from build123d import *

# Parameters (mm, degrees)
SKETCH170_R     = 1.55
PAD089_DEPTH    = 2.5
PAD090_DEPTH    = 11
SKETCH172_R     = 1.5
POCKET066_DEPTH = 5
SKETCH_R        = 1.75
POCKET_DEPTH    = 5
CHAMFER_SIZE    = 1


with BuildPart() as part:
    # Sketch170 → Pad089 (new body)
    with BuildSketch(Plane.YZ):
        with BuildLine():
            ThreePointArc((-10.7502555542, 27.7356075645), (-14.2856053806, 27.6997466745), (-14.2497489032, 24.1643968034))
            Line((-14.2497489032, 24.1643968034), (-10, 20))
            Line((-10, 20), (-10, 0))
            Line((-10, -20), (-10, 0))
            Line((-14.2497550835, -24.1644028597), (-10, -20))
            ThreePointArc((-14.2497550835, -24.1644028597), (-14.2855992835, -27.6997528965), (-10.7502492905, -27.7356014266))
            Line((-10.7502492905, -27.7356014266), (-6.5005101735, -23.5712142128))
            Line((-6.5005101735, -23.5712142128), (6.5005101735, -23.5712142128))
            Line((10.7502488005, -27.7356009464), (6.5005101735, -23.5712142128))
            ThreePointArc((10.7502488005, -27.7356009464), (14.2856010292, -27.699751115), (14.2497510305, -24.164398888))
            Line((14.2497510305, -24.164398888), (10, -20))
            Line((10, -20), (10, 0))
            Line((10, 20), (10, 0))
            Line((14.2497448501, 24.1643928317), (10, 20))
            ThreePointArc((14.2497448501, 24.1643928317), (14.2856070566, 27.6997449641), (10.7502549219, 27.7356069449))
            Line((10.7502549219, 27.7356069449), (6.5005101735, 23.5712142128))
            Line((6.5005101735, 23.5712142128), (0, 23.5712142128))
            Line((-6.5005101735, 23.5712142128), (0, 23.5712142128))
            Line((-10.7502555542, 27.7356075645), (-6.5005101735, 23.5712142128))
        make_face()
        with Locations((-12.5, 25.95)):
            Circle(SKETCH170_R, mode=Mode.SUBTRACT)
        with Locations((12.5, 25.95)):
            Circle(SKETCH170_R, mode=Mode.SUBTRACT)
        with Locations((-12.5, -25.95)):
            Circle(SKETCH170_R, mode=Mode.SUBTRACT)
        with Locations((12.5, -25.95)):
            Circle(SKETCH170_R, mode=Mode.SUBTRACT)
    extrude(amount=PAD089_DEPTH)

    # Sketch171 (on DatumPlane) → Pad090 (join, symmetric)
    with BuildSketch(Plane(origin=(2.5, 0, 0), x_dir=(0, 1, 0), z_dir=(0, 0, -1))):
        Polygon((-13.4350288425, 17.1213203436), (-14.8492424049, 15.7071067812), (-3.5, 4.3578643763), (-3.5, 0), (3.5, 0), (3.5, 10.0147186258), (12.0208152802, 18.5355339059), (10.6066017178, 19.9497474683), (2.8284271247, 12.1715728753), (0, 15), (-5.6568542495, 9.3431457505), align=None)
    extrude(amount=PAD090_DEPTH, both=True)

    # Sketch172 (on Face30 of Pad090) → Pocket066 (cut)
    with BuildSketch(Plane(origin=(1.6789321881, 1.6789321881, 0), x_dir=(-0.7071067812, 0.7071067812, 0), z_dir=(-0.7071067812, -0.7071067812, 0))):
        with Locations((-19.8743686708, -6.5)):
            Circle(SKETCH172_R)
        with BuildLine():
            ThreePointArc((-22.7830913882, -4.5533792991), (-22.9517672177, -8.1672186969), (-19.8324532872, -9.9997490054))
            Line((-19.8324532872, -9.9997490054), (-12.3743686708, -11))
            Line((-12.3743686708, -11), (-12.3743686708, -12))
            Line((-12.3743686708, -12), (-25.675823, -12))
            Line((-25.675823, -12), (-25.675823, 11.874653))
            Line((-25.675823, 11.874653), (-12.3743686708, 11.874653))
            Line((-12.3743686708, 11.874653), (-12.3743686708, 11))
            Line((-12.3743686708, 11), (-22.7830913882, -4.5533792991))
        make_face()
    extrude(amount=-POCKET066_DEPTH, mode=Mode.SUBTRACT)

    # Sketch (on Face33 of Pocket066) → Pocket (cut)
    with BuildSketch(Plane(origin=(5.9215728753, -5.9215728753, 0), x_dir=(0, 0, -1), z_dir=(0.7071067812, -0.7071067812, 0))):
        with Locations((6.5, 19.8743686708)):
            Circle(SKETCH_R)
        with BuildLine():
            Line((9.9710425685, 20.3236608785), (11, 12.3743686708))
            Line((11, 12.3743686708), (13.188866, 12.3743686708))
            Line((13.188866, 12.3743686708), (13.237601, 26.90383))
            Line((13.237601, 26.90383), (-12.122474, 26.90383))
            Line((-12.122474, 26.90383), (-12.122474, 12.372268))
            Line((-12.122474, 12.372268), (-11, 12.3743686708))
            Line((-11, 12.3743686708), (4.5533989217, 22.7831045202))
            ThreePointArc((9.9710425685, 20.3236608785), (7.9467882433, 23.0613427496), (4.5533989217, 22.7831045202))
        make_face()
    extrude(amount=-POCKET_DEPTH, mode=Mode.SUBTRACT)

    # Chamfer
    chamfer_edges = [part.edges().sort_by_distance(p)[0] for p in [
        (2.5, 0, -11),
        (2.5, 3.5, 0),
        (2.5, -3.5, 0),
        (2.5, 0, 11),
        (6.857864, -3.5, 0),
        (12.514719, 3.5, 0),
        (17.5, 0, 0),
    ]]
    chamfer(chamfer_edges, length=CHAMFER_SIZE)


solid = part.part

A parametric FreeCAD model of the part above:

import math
import FreeCAD as App
import Part
import Sketcher
Q = App.Units.Quantity


def edges_at(feature, points):
    """Names of the edges that pass closest to the given points."""
    edges = feature.Shape.Edges
    near = lambda p: min(range(len(edges)), key=lambda i: edges[i].distToShape(Part.Vertex(*p))[0])
    return sorted({f"Edge{near(p) + 1}" for p in points})

doc = App.newDocument("Part")
body = doc.addObject("PartDesign::Body", "Body")

# Sketch on YZ plane
sketch1 = body.newObject("Sketcher::SketchObject", "Sketch")
sketch1.AttachmentSupport = (doc.getObject("YZ_Plane"), [""])
sketch1.MapMode = "FlatFace"
sketch1.addGeometry(Part.ArcOfCircle(Part.Circle(App.Vector(-12.5, 25.95, 0), App.Vector(0, 0, 1), 2.5), math.radians(45.581197), math.radians(225.581054)), False)
sketch1.addGeometry(Part.LineSegment(App.Vector(-14.249749, 24.164397, 0), App.Vector(-10, 20, 0)), False)
sketch1.addGeometry(Part.LineSegment(App.Vector(-10, 20, 0), App.Vector(-10, -20, 0)), False)
sketch1.addGeometry(Part.LineSegment(App.Vector(-10, -20, 0), App.Vector(-14.249755, -24.164403, 0)), False)
sketch1.addGeometry(Part.ArcOfCircle(Part.Circle(App.Vector(-12.5, -25.95, 0), App.Vector(0, 0, 1), 2.5), math.radians(134.419145), math.radians(314.419004)), False)
sketch1.addGeometry(Part.LineSegment(App.Vector(-10.750249, -27.735601, 0), App.Vector(-6.50051, -23.571214, 0)), False)
sketch1.addGeometry(Part.LineSegment(App.Vector(-6.50051, -23.571214, 0), App.Vector(6.50051, -23.571214, 0)), False)
sketch1.addGeometry(Part.LineSegment(App.Vector(6.50051, -23.571214, 0), App.Vector(10.750249, -27.735601, 0)), False)
sketch1.addGeometry(Part.ArcOfCircle(Part.Circle(App.Vector(12.5, -25.95, 0), App.Vector(0, 0, 1), 2.5), math.radians(-134.41902), math.radians(45.580985)), False)
sketch1.addGeometry(Part.LineSegment(App.Vector(14.249751, -24.164399, 0), App.Vector(10, -20, 0)), False)
sketch1.addGeometry(Part.LineSegment(App.Vector(10, -20, 0), App.Vector(10, 20, 0)), False)
sketch1.addGeometry(Part.LineSegment(App.Vector(10, 20, 0), App.Vector(14.249745, 24.164393, 0)), False)
sketch1.addGeometry(Part.ArcOfCircle(Part.Circle(App.Vector(12.5, 25.95, 0), App.Vector(0, 0, 1), 2.5), math.radians(-45.581184), math.radians(134.418824)), False)
sketch1.addGeometry(Part.LineSegment(App.Vector(10.750255, 27.735607, 0), App.Vector(6.50051, 23.571214, 0)), False)
sketch1.addGeometry(Part.LineSegment(App.Vector(6.50051, 23.571214, 0), App.Vector(-6.50051, 23.571214, 0)), False)
sketch1.addGeometry(Part.LineSegment(App.Vector(-6.50051, 23.571214, 0), App.Vector(-10.750256, 27.735608, 0)), False)
sketch1.addGeometry(Part.Circle(App.Vector(-12.5, -25.95, 0), App.Vector(0, 0, 1), 1.55), False)
sketch1.addGeometry(Part.Circle(App.Vector(12.5, -25.95, 0), App.Vector(0, 0, 1), 1.55), False)
sketch1.addGeometry(Part.Circle(App.Vector(-12.5, 25.95, 0), App.Vector(0, 0, 1), 1.55), False)
sketch1.addGeometry(Part.Circle(App.Vector(12.5, 25.95, 0), App.Vector(0, 0, 1), 1.55), False)
sketch1.addConstraint(Sketcher.Constraint("Coincident", 0, 2, 1, 1))
sketch1.addConstraint(Sketcher.Constraint("Coincident", 1, 2, 2, 1))
sketch1.addConstraint(Sketcher.Constraint("Coincident", 2, 2, 3, 1))
sketch1.addConstraint(Sketcher.Constraint("Coincident", 3, 2, 4, 1))
sketch1.addConstraint(Sketcher.Constraint("Coincident", 4, 2, 5, 1))
sketch1.addConstraint(Sketcher.Constraint("Coincident", 5, 2, 6, 1))
sketch1.addConstraint(Sketcher.Constraint("Coincident", 6, 2, 7, 1))
sketch1.addConstraint(Sketcher.Constraint("Coincident", 7, 2, 8, 1))
sketch1.addConstraint(Sketcher.Constraint("Coincident", 8, 2, 9, 1))
sketch1.addConstraint(Sketcher.Constraint("Coincident", 9, 2, 10, 1))
sketch1.addConstraint(Sketcher.Constraint("Coincident", 10, 2, 11, 1))
sketch1.addConstraint(Sketcher.Constraint("Tangent", 11, 2, 12, 1))
sketch1.addConstraint(Sketcher.Constraint("Tangent", 12, 2, 13, 1))
sketch1.addConstraint(Sketcher.Constraint("Coincident", 13, 2, 14, 1))
sketch1.addConstraint(Sketcher.Constraint("Coincident", 14, 2, 15, 1))
sketch1.addConstraint(Sketcher.Constraint("Tangent", 15, 2, 0, 1))
sketch1.addConstraint(Sketcher.Constraint("Vertical", 2))
sketch1.addConstraint(Sketcher.Constraint("Horizontal", 6))
sketch1.addConstraint(Sketcher.Constraint("Vertical", 10))
sketch1.addConstraint(Sketcher.Constraint("Horizontal", 14))
sketch1.addConstraint(Sketcher.Constraint("Coincident", 16, 3, 4, 3))
sketch1.addConstraint(Sketcher.Constraint("Coincident", 17, 3, 8, 3))
sketch1.addConstraint(Sketcher.Constraint("Coincident", 18, 3, 0, 3))
sketch1.addConstraint(Sketcher.Constraint("Coincident", 19, 3, 12, 3))
sketch1.addConstraint(Sketcher.Constraint("Equal", 0, 4))
sketch1.addConstraint(Sketcher.Constraint("Equal", 4, 8))
sketch1.addConstraint(Sketcher.Constraint("Equal", 8, 12))
sketch1.addConstraint(Sketcher.Constraint("Equal", 16, 17))
sketch1.addConstraint(Sketcher.Constraint("Equal", 17, 18))
sketch1.addConstraint(Sketcher.Constraint("Equal", 18, 19))
sketch1.addConstraint(Sketcher.Constraint("Symmetric", 0, 3, 8, 3, -1, 1))
sketch1.addConstraint(Sketcher.Constraint("Symmetric", 4, 3, 12, 3, -1, 1))
sketch1.addConstraint(Sketcher.Constraint("Symmetric", 1, 2, 9, 2, -1, 1))
sketch1.addConstraint(Sketcher.Constraint("Symmetric", 5, 2, 13, 2, -1, 1))
sketch1.addConstraint(Sketcher.Constraint("Symmetric", 4, 3, 8, 3, -2))
sketch1.addConstraint(Sketcher.Constraint("Parallel", 3, 5))
sketch1.addConstraint(Sketcher.Constraint("Parallel", 1, 7))
sketch1.addConstraint(Sketcher.Constraint("Parallel", 5, 11))
sketch1.addConstraint(Sketcher.Constraint("Parallel", 9, 15))
sketch1.addConstraint(Sketcher.Constraint("Horizontal", 4, 2, 7, 2))
sketch1.addConstraint(Sketcher.Constraint("Horizontal", 2, 2, 9, 2))
sketch1.addConstraint(Sketcher.Constraint("Equal", 11, 13))
sketch1.addConstraint(Sketcher.Constraint("Diameter", 16, Q("3.1 mm")))
sketch1.addConstraint(Sketcher.Constraint("Radius", 0, Q("2.5 mm")))
sketch1.addConstraint(Sketcher.Constraint("DistanceY", 2, 2, 2, 1, Q("40 mm")))
sketch1.addConstraint(Sketcher.Constraint("DistanceX", 1, 2, -1, 1, Q("10 mm")))
sketch1.addConstraint(Sketcher.Constraint("DistanceX", 4, 3, 8, 3, Q("25 mm")))
sketch1.addConstraint(Sketcher.Constraint("DistanceY", 4, 3, 0, 3, Q("51.9 mm")))
sketch1.addConstraint(Sketcher.Constraint("DistanceY", 4, 2, -1, 1, Q("27.735601 mm")))
sketch1.addConstraint(Sketcher.Constraint("DistanceY", 8, 2, -1, 1, Q("24.164399 mm")))
sketch1.addConstraint(Sketcher.Constraint("DistanceY", 4, 2, 3, 2, Q("3.571199 mm")))
sketch1.addConstraint(Sketcher.Constraint("DistanceX", 0, 2, -1, 1, Q("14.249749 mm")))
pad1 = body.newObject("PartDesign::Pad", "Pad")
pad1.Profile = sketch1
pad1.Length = 2.5

# Sketch on XY plane
sketch2 = body.newObject("Sketcher::SketchObject", "Sketch001")
sketch2.AttachmentSupport = (doc.getObject("XY_Plane"), [""])
sketch2.MapMode = "FlatFace"
sketch2.addGeometry(Part.LineSegment(App.Vector(19.62132, -13.435029, 0), App.Vector(18.207107, -14.849242, 0)), False)
sketch2.addGeometry(Part.LineSegment(App.Vector(18.207107, -14.849242, 0), App.Vector(6.857864, -3.5, 0)), False)
sketch2.addGeometry(Part.LineSegment(App.Vector(6.857864, -3.5, 0), App.Vector(2.5, -3.5, 0)), False)
sketch2.addGeometry(Part.LineSegment(App.Vector(2.5, -3.5, 0), App.Vector(2.5, 3.5, 0)), False)
sketch2.addGeometry(Part.LineSegment(App.Vector(2.5, 3.5, 0), App.Vector(12.514719, 3.5, 0)), False)
sketch2.addGeometry(Part.LineSegment(App.Vector(12.514719, 3.5, 0), App.Vector(21.035534, 12.020815, 0)), False)
sketch2.addGeometry(Part.LineSegment(App.Vector(21.035534, 12.020815, 0), App.Vector(22.449747, 10.606602, 0)), False)
sketch2.addGeometry(Part.LineSegment(App.Vector(22.449747, 10.606602, 0), App.Vector(14.671573, 2.828427, 0)), False)
sketch2.addGeometry(Part.LineSegment(App.Vector(14.671573, 2.828427, 0), App.Vector(17.5, 0, 0)), False)
sketch2.addGeometry(Part.LineSegment(App.Vector(17.5, 0, 0), App.Vector(11.843146, -5.656854, 0)), False)
sketch2.addGeometry(Part.LineSegment(App.Vector(11.843146, -5.656854, 0), App.Vector(19.62132, -13.435029, 0)), False)
sketch2.addConstraint(Sketcher.Constraint("Coincident", 0, 2, 1, 1))
sketch2.addConstraint(Sketcher.Constraint("Coincident", 1, 2, 2, 1))
sketch2.addConstraint(Sketcher.Constraint("Coincident", 2, 2, 3, 1))
sketch2.addConstraint(Sketcher.Constraint("Coincident", 3, 2, 4, 1))
sketch2.addConstraint(Sketcher.Constraint("Coincident", 4, 2, 5, 1))
sketch2.addConstraint(Sketcher.Constraint("Coincident", 5, 2, 6, 1))
sketch2.addConstraint(Sketcher.Constraint("Coincident", 6, 2, 7, 1))
sketch2.addConstraint(Sketcher.Constraint("Coincident", 7, 2, 8, 1))
sketch2.addConstraint(Sketcher.Constraint("Coincident", 8, 2, 9, 1))
sketch2.addConstraint(Sketcher.Constraint("Coincident", 9, 2, 10, 1))
sketch2.addConstraint(Sketcher.Constraint("Coincident", 10, 2, 0, 1))
sketch2.addConstraint(Sketcher.Constraint("Horizontal", 2))
sketch2.addConstraint(Sketcher.Constraint("Vertical", 3))
sketch2.addConstraint(Sketcher.Constraint("Horizontal", 4))
sketch2.addConstraint(Sketcher.Constraint("PointOnObject", 8, 2, -1))
sketch2.addConstraint(Sketcher.Constraint("Perpendicular", 0, 1))
sketch2.addConstraint(Sketcher.Constraint("Perpendicular", 1, 5))
sketch2.addConstraint(Sketcher.Constraint("Perpendicular", 5, 6))
sketch2.addConstraint(Sketcher.Constraint("Perpendicular", 6, 7))
sketch2.addConstraint(Sketcher.Constraint("Perpendicular", 7, 8))
sketch2.addConstraint(Sketcher.Constraint("Perpendicular", 8, 9))
sketch2.addConstraint(Sketcher.Constraint("Perpendicular", 9, 10))
sketch2.addConstraint(Sketcher.Constraint("Equal", 0, 6))
sketch2.addConstraint(Sketcher.Constraint("Equal", 7, 10))
sketch2.addConstraint(Sketcher.Constraint("DistanceY", 3, 1, 3, 2, Q("7 mm")))
sketch2.addConstraint(Sketcher.Constraint("Angle", 0, Q("-135 deg")))
sketch2.addConstraint(Sketcher.Constraint("Distance", 0, Q("2 mm")))
sketch2.addConstraint(Sketcher.Constraint("Distance", 7, Q("11 mm")))
sketch2.addConstraint(Sketcher.Constraint("Distance", 8, Q("4 mm")))
sketch2.addConstraint(Sketcher.Constraint("Distance", 9, Q("8 mm")))
sketch2.addConstraint(Sketcher.Constraint("DistanceY", 1, 2, -1, 1, Q("3.5 mm")))
sketch2.addConstraint(Sketcher.Constraint("DistanceX", -1, 1, 2, 2, Q("2.5 mm")))
sketch2.addConstraint(Sketcher.Constraint("DistanceX", -1, 1, 8, 2, Q("17.5 mm")))
pad2 = body.newObject("PartDesign::Pad", "Pad001")
pad2.Profile = sketch2
pad2.Length = 22
pad2.Midplane = True

# Sketch on an angled plane
sketch3 = body.newObject("Sketcher::SketchObject", "Sketch002")
sketch3.Placement = App.Placement(App.Vector(1.678932, 1.678932, 0), App.Rotation(App.Vector(-0.707106781, 0.707106781, 0), App.Vector(0, 0, -0.999999999), App.Vector(-0.707106781, -0.707106781, 0), "ZXY"))
sketch3.addGeometry(Part.Circle(App.Vector(-19.874369, -6.5, 0), App.Vector(0, 0, 1), 1.5), False)
sketch3.addGeometry(Part.ArcOfCircle(Part.Circle(App.Vector(-19.874369, -6.5, 0), App.Vector(0, 0, 1), 3.5), math.radians(146.208154), math.radians(270.686181)), False)
sketch3.addGeometry(Part.LineSegment(App.Vector(-22.783091, -4.553379, 0), App.Vector(-12.374369, 11, 0)), False)
sketch3.addGeometry(Part.LineSegment(App.Vector(-12.374369, 11, 0), App.Vector(-12.374369, 11.874653, 0)), False)
sketch3.addGeometry(Part.LineSegment(App.Vector(-12.374369, 11.874653, 0), App.Vector(-25.675823, 11.874653, 0)), False)
sketch3.addGeometry(Part.LineSegment(App.Vector(-25.675823, 11.874653, 0), App.Vector(-25.675823, -12, 0)), False)
sketch3.addGeometry(Part.LineSegment(App.Vector(-25.675823, -12, 0), App.Vector(-12.374369, -12, 0)), False)
sketch3.addGeometry(Part.LineSegment(App.Vector(-12.374369, -12, 0), App.Vector(-12.374369, -11, 0)), False)
sketch3.addGeometry(Part.LineSegment(App.Vector(-12.374369, -11, 0), App.Vector(-19.832453, -9.999749, 0)), False)
sketch3.addConstraint(Sketcher.Constraint("Coincident", 1, 1, 2, 1))
sketch3.addConstraint(Sketcher.Constraint("Coincident", 2, 2, 3, 1))
sketch3.addConstraint(Sketcher.Constraint("Coincident", 3, 2, 4, 1))
sketch3.addConstraint(Sketcher.Constraint("Coincident", 4, 2, 5, 1))
sketch3.addConstraint(Sketcher.Constraint("Coincident", 5, 2, 6, 1))
sketch3.addConstraint(Sketcher.Constraint("Coincident", 6, 2, 7, 1))
sketch3.addConstraint(Sketcher.Constraint("Coincident", 7, 2, 8, 1))
sketch3.addConstraint(Sketcher.Constraint("Coincident", 8, 2, 1, 2))
sketch3.addConstraint(Sketcher.Constraint("Vertical", 3))
sketch3.addConstraint(Sketcher.Constraint("Horizontal", 4))
sketch3.addConstraint(Sketcher.Constraint("Vertical", 5))
sketch3.addConstraint(Sketcher.Constraint("Horizontal", 6))
sketch3.addConstraint(Sketcher.Constraint("Vertical", 7))
sketch3.addConstraint(Sketcher.Constraint("Coincident", 1, 3, 0, 3))
sketch3.addConstraint(Sketcher.Constraint("Symmetric", 2, 2, 7, 2, -1))
sketch3.addConstraint(Sketcher.Constraint("Diameter", 0, Q("3 mm")))
sketch3.addConstraint(Sketcher.Constraint("Radius", 1, Q("3.5 mm")))
sketch3.addConstraint(Sketcher.Constraint("DistanceY", 7, 1, 7, 2, Q("1 mm")))
sketch3.addConstraint(Sketcher.Constraint("DistanceY", -1, 1, 2, 2, Q("11 mm")))
sketch3.addConstraint(Sketcher.Constraint("DistanceY", 0, 3, -1, 1, Q("6.5 mm")))
sketch3.addConstraint(Sketcher.Constraint("DistanceX", 0, 3, 2, 2, Q("7.5 mm")))
sketch3.addConstraint(Sketcher.Constraint("Distance", 8, Q("7.524861 mm")))
sketch3.addConstraint(Sketcher.Constraint("DistanceX", 4, 2, 4, 1, Q("13.301454 mm")))
sketch3.addConstraint(Sketcher.Constraint("DistanceY", 3, 1, 3, 2, Q("0.874653 mm")))
sketch3.addConstraint(Sketcher.Constraint("DistanceX", 0, 3, -1, 1, Q("19.874369 mm")))
sketch3.addConstraint(Sketcher.Constraint("DistanceX", 1, 1, -1, 1, Q("22.783091 mm")))
pocket1 = body.newObject("PartDesign::Pocket", "Pocket")
pocket1.Profile = sketch3
pocket1.Length = 5

# Sketch on an angled plane
sketch4 = body.newObject("Sketcher::SketchObject", "Sketch003")
sketch4.Placement = App.Placement(App.Vector(5.921573, -5.921573, 0), App.Rotation(App.Vector(0, 0, -1), App.Vector(0.707106781, 0.707106781, 0), App.Vector(0.707106781, -0.707106781, 0), "ZXY"))
sketch4.addGeometry(Part.Circle(App.Vector(6.5, 19.874369, 0), App.Vector(0, 0, 1), 1.75), False)
sketch4.addGeometry(Part.LineSegment(App.Vector(9.971043, 20.323661, 0), App.Vector(11, 12.374369, 0)), False)
sketch4.addGeometry(Part.LineSegment(App.Vector(11, 12.374369, 0), App.Vector(13.188866, 12.374369, 0)), False)
sketch4.addGeometry(Part.LineSegment(App.Vector(13.188866, 12.374369, 0), App.Vector(13.237601, 26.90383, 0)), False)
sketch4.addGeometry(Part.LineSegment(App.Vector(13.237601, 26.90383, 0), App.Vector(-12.122474, 26.90383, 0)), False)
sketch4.addGeometry(Part.LineSegment(App.Vector(-12.122474, 26.90383, 0), App.Vector(-12.122474, 12.372268, 0)), False)
sketch4.addGeometry(Part.LineSegment(App.Vector(-12.122474, 12.372268, 0), App.Vector(-11, 12.374369, 0)), False)
sketch4.addGeometry(Part.LineSegment(App.Vector(-11, 12.374369, 0), App.Vector(4.553399, 22.783105, 0)), False)
sketch4.addGeometry(Part.ArcOfCircle(Part.Circle(App.Vector(6.5, 19.874369, 0), App.Vector(0, 0, 1), 3.5), math.radians(7.375365), math.radians(123.791459)), False)
sketch4.addConstraint(Sketcher.Constraint("Coincident", 1, 2, 2, 1))
sketch4.addConstraint(Sketcher.Constraint("Coincident", 2, 2, 3, 1))
sketch4.addConstraint(Sketcher.Constraint("Coincident", 3, 2, 4, 1))
sketch4.addConstraint(Sketcher.Constraint("Coincident", 4, 2, 5, 1))
sketch4.addConstraint(Sketcher.Constraint("Coincident", 5, 2, 6, 1))
sketch4.addConstraint(Sketcher.Constraint("Coincident", 6, 2, 7, 1))
sketch4.addConstraint(Sketcher.Constraint("Tangent", 7, 2, 8, 2))
sketch4.addConstraint(Sketcher.Constraint("Tangent", 8, 1, 1, 1))
sketch4.addConstraint(Sketcher.Constraint("Horizontal", 2))
sketch4.addConstraint(Sketcher.Constraint("Horizontal", 4))
sketch4.addConstraint(Sketcher.Constraint("Vertical", 5))
sketch4.addConstraint(Sketcher.Constraint("Coincident", 8, 3, 0, 3))
sketch4.addConstraint(Sketcher.Constraint("Symmetric", 1, 2, 6, 2, -2))
sketch4.addConstraint(Sketcher.Constraint("Diameter", 0, Q("3.5 mm")))
sketch4.addConstraint(Sketcher.Constraint("Radius", 8, Q("3.5 mm")))
sketch4.addConstraint(Sketcher.Constraint("DistanceX", -1, 1, 1, 2, Q("11 mm")))
sketch4.addConstraint(Sketcher.Constraint("DistanceX", -1, 1, 0, 3, Q("6.5 mm")))
sketch4.addConstraint(Sketcher.Constraint("DistanceY", 1, 2, 0, 3, Q("7.5 mm")))
sketch4.addConstraint(Sketcher.Constraint("DistanceY", 5, 2, 5, 1, Q("14.531562 mm")))
sketch4.addConstraint(Sketcher.Constraint("DistanceX", -1, 1, 3, 2, Q("13.237601 mm")))
sketch4.addConstraint(Sketcher.Constraint("DistanceY", 5, 2, 0, 3, Q("7.502101 mm")))
sketch4.addConstraint(Sketcher.Constraint("DistanceX", 2, 1, 2, 2, Q("2.188866 mm")))
sketch4.addConstraint(Sketcher.Constraint("DistanceX", 4, 2, 4, 1, Q("25.360075 mm")))
sketch4.addConstraint(Sketcher.Constraint("DistanceY", -1, 1, 0, 3, Q("19.874369 mm")))
pocket2 = body.newObject("PartDesign::Pocket", "Pocket001")
pocket2.Profile = sketch4
pocket2.Length = 5
doc.recompute()

chamfer = body.newObject("PartDesign::Chamfer", "Chamfer")
chamfer.Base = (pocket2, edges_at(pocket2, [
    (2.5, 0, -11),
    (2.5, 3.5, 0),
    (2.5, -3.5, 0),
    (2.5, 0, 11),
    (6.858, -3.5, 0),
    (12.515, 3.5, 0),
    (17.5, 0, 0),
]))
chamfer.Size = 1

doc.recompute()
